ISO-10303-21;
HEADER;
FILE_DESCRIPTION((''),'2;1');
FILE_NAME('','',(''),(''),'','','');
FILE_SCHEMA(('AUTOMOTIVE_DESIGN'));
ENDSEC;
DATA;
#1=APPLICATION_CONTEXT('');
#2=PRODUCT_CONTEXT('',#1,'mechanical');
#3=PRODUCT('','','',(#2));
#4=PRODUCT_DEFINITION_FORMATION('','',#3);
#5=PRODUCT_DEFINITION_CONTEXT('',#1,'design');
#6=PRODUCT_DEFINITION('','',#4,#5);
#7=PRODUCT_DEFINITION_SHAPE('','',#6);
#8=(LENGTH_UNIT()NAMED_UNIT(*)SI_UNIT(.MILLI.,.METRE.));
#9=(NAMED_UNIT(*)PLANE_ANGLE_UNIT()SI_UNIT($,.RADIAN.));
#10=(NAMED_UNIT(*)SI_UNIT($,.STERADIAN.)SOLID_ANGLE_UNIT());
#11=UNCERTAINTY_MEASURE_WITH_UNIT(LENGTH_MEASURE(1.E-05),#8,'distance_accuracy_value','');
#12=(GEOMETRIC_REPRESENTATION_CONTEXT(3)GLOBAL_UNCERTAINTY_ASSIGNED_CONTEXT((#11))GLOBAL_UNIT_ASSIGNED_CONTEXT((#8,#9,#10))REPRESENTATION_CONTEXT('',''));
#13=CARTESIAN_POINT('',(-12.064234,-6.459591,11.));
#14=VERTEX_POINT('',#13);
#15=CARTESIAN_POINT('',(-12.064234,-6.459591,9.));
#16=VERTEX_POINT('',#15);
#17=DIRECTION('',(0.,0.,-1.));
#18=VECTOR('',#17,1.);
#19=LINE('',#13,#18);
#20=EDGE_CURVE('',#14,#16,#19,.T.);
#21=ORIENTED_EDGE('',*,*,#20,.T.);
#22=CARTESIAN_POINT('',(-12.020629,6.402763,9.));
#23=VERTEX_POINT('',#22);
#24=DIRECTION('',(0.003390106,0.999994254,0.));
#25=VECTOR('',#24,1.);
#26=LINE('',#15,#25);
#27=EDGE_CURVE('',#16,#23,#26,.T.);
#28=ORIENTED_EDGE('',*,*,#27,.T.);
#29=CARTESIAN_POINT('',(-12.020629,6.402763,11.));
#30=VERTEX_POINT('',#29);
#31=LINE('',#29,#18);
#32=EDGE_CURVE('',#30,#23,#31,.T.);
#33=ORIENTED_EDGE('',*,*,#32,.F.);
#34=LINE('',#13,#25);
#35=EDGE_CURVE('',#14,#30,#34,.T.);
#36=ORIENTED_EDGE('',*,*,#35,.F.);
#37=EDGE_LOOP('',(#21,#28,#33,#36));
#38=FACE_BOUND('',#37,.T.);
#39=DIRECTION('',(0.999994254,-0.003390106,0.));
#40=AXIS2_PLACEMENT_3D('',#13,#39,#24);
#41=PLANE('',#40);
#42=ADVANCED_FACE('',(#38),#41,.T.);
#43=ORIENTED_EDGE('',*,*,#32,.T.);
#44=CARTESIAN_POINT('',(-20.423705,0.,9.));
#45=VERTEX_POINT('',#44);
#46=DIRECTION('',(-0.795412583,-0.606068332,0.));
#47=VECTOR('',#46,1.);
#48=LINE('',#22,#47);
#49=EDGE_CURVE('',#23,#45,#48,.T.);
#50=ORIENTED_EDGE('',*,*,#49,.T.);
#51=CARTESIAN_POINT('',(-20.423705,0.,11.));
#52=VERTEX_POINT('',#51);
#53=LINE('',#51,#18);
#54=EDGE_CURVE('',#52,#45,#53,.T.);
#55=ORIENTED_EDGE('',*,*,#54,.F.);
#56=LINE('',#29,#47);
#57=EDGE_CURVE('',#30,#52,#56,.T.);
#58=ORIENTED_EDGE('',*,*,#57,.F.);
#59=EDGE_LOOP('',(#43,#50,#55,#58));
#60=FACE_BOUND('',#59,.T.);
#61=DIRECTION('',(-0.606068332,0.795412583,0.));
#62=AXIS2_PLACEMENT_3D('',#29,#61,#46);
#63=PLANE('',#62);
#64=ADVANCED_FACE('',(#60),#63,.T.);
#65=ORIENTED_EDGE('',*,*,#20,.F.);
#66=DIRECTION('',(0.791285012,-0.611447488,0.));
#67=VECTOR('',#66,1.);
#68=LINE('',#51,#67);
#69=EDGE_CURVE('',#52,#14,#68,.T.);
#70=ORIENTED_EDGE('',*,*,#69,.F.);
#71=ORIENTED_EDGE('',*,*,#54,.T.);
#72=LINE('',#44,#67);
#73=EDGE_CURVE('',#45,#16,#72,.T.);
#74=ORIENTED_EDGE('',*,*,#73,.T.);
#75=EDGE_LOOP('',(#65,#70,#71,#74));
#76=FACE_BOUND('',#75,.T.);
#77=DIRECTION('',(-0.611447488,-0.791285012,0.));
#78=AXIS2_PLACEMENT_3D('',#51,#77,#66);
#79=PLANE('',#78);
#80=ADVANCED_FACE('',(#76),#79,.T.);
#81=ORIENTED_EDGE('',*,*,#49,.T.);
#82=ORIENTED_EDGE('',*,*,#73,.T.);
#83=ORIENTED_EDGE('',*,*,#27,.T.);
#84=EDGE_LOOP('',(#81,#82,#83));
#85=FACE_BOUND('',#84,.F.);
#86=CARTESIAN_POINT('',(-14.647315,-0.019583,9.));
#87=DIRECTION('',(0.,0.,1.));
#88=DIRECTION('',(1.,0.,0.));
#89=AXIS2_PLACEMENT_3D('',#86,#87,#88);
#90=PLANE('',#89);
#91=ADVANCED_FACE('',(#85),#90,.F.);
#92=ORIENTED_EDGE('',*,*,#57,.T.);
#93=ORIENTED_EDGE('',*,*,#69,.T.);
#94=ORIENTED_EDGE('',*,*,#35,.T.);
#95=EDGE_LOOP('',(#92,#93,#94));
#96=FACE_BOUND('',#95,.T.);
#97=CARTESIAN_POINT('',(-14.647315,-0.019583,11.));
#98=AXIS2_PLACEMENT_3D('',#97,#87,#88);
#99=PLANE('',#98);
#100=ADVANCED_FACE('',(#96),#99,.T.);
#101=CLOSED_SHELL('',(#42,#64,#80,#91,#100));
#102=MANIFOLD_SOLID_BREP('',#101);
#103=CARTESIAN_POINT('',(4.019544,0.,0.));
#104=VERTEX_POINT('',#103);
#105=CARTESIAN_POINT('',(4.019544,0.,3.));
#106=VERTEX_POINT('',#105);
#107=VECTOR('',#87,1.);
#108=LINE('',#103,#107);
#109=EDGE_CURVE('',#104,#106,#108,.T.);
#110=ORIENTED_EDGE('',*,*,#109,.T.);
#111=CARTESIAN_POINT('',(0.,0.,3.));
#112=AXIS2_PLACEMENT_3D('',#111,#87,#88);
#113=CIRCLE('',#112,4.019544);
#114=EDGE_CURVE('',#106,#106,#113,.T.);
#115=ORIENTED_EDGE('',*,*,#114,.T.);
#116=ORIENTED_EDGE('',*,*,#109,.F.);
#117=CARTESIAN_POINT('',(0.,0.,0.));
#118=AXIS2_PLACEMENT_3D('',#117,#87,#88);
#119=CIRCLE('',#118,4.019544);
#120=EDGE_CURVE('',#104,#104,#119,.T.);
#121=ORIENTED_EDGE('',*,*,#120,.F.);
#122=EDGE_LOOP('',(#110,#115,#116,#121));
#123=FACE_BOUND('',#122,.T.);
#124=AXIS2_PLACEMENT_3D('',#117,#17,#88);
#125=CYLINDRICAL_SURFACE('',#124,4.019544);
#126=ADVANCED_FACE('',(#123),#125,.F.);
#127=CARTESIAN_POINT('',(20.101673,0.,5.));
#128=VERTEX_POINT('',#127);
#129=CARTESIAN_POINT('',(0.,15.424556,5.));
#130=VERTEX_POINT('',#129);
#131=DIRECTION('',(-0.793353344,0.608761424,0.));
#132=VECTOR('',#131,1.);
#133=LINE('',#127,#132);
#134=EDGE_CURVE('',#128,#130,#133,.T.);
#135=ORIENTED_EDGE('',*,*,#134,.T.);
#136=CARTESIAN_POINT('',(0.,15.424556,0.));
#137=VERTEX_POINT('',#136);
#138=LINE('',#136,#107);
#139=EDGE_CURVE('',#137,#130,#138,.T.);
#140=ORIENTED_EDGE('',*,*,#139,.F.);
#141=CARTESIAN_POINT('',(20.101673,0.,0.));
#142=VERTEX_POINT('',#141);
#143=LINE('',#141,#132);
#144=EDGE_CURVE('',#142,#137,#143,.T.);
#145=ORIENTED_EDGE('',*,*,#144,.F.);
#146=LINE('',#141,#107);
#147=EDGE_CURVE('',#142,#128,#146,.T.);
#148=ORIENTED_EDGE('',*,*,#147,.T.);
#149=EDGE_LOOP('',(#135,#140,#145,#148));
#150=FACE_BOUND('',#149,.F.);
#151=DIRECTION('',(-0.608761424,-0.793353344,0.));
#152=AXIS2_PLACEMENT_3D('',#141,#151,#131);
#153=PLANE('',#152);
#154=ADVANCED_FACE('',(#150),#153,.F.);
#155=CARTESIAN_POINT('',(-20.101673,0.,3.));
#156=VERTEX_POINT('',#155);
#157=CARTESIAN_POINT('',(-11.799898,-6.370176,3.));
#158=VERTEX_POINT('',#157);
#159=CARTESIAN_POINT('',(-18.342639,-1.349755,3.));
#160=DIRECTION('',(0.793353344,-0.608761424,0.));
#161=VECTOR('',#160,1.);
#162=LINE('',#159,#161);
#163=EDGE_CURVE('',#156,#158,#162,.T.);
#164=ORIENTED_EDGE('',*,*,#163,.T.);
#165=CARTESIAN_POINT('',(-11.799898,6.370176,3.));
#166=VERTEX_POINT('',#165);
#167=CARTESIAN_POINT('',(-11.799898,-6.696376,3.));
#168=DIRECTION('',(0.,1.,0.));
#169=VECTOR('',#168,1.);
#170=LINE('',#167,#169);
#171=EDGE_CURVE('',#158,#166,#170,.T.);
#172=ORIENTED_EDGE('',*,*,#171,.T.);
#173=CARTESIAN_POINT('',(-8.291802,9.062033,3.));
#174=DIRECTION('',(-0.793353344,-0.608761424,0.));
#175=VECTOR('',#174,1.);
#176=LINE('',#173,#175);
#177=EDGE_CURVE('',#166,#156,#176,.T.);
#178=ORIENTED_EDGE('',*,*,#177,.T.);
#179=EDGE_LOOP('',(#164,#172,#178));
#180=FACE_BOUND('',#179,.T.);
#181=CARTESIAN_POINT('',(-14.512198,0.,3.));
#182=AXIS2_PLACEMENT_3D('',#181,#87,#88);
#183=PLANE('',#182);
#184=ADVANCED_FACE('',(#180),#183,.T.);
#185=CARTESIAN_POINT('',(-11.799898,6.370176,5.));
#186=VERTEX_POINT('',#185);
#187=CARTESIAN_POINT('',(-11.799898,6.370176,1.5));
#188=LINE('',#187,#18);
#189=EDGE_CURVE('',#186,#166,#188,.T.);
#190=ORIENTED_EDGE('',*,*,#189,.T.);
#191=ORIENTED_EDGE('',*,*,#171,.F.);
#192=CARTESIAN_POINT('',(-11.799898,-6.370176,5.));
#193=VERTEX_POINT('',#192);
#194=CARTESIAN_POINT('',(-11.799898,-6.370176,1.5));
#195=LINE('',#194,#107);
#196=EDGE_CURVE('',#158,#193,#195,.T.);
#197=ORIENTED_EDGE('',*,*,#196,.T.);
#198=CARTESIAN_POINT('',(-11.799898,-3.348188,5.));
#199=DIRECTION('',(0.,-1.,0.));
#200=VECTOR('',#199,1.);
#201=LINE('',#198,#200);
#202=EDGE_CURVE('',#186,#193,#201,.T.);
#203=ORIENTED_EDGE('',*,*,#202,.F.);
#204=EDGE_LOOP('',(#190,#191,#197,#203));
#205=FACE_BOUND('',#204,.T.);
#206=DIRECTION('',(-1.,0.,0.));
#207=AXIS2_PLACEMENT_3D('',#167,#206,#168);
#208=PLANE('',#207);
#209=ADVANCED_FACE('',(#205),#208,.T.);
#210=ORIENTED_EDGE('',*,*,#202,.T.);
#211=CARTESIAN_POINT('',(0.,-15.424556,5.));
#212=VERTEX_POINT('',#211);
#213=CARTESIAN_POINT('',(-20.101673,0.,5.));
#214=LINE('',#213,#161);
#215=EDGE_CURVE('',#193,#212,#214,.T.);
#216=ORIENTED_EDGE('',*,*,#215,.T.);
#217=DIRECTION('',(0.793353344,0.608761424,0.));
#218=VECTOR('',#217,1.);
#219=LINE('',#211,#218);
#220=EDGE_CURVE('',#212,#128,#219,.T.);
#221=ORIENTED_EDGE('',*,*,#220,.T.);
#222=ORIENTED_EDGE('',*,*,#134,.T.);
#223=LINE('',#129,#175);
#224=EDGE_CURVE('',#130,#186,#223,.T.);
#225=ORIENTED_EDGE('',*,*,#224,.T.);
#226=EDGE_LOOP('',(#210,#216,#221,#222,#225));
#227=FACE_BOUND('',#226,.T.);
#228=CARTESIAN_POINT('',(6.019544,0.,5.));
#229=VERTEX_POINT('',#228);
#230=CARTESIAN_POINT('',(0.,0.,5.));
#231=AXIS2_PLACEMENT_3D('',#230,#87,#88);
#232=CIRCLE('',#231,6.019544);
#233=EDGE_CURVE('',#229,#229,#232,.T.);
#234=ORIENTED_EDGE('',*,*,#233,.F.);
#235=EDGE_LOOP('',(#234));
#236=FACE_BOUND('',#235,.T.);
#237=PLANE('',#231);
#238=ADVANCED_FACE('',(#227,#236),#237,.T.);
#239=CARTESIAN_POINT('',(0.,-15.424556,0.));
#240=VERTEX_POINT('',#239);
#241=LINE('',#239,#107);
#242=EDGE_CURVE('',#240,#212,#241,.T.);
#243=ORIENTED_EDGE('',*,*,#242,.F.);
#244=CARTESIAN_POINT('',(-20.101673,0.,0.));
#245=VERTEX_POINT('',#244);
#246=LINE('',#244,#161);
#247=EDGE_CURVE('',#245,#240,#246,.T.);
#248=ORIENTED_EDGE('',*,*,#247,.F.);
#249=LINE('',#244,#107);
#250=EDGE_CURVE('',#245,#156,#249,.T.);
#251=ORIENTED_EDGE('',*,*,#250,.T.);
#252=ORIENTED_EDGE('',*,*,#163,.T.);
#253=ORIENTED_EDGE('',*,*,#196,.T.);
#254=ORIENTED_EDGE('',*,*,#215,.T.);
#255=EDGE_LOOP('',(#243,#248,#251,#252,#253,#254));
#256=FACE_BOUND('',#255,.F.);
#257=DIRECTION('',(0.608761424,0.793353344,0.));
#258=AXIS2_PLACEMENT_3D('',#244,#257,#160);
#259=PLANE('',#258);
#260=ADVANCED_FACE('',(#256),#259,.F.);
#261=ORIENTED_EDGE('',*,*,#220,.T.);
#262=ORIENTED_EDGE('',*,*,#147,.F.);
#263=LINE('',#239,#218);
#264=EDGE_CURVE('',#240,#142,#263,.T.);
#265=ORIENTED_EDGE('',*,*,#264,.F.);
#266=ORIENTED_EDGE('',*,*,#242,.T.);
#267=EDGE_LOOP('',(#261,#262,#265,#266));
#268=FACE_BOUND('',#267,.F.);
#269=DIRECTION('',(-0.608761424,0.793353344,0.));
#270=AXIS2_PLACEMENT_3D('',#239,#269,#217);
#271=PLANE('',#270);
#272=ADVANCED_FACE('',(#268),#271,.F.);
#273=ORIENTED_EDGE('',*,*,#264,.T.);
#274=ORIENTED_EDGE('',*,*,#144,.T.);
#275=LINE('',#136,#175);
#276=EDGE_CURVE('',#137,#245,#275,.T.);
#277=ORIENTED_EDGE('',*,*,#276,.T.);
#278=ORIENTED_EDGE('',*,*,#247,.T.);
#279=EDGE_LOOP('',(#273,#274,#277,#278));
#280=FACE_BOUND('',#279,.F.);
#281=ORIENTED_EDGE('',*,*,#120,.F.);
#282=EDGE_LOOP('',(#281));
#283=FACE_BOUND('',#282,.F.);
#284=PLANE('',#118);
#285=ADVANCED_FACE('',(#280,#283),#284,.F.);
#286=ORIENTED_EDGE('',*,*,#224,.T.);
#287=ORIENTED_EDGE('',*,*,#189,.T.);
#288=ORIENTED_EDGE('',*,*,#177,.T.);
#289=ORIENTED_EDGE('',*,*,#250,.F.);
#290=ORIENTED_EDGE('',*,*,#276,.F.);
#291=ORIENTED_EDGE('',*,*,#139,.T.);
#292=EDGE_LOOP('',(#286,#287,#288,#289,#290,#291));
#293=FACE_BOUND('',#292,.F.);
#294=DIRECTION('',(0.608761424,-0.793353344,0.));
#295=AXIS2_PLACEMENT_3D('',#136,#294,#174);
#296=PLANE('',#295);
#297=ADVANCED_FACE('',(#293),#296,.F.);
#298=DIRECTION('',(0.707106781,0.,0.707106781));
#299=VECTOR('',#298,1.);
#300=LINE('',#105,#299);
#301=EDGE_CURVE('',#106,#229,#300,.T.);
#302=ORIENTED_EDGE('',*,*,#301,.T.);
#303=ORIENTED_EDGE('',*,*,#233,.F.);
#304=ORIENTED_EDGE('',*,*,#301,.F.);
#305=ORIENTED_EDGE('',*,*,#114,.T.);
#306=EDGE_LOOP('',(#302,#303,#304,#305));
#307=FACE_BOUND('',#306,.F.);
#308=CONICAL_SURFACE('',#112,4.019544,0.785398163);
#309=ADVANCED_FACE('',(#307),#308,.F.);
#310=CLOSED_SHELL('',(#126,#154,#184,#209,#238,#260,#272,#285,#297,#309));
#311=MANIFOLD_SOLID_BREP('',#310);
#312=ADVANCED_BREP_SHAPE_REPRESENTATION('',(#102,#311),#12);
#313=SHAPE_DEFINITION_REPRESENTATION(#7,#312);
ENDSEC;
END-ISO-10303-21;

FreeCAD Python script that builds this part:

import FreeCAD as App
import Part
import Sketcher
from FreeCAD import Vector
Q = App.Units.Quantity


def edges_at(feature, points):
    """Names of the edges that pass closest to the given points."""
    edges = feature.Shape.Edges
    near = lambda p: min(range(len(edges)), key=lambda i: edges[i].distToShape(Part.Vertex(*p))[0])
    return sorted({f"Edge{near(p) + 1}" for p in points})


def add_polygon(sketch, points):
    """Adds a closed chain of lines whose ends are joined by coincident constraints."""
    first, n = sketch.GeometryCount, len(points)
    for a, b in zip(points, points[1:] + points[:1]):
        sketch.addGeometry(Part.LineSegment(App.Vector(*a, 0), App.Vector(*b, 0)), False)
    for i in range(n):
        sketch.addConstraint(Sketcher.Constraint("Coincident", first + i, 2, first + (i + 1) % n, 1))

doc = App.newDocument("Part")
body = doc.addObject("PartDesign::Body", "Body")

sketch1 = body.newObject("Sketcher::SketchObject", "Sketch")
sketch1.AttachmentSupport = (doc.getObject("XY_Plane"), [""])
sketch1.MapMode = "FlatFace"
add_polygon(sketch1, [(0, -15.4), (20.1, 0), (0, 15.4), (-20.1, 0)])
sketch1.addGeometry(Part.Circle(Vector(0, 0, 0), Vector(0, 0, 1), 4), False)
sketch1.addConstraint(Sketcher.Constraint("Coincident", 4, 3, -1, 1))
sketch1.addConstraint(Sketcher.Constraint("Symmetric", 0, 2, 2, 2, -1, 1))
sketch1.addConstraint(Sketcher.Constraint("Symmetric", 1, 2, 3, 2, -1, 1))
sketch1.addConstraint(Sketcher.Constraint("PointOnObject", 0, 2, -1))
sketch1.addConstraint(Sketcher.Constraint("PointOnObject", 1, 2, -2))
sketch1.addConstraint(Sketcher.Constraint("Angle", 0, Q("37.5 deg")))
sketch1.addConstraint(Sketcher.Constraint("Diameter", 4, Q("8.039088 mm")))
sketch1.addConstraint(Sketcher.Constraint("Distance", 0, Q("25.337604 mm")))
pad1 = body.newObject("PartDesign::Pad", "Pad")
pad1.Profile = sketch1
pad1.Length = 5
doc.recompute()

chamfer = body.newObject("PartDesign::Chamfer", "Chamfer")
chamfer.Base = (pad1, edges_at(pad1, [(-4.02, 0, 5)]))
chamfer.Size = 2

sketch2 = body.newObject("Sketcher::SketchObject", "Sketch001")
sketch2.AttachmentSupport = (doc.getObject("XY_Plane"), [""])
sketch2.MapMode = "FlatFace"
sketch2.AttachmentOffset = App.Placement(Vector(0, 0, 3), App.Rotation())
add_polygon(sketch2, [(-12, 7), (-21, 0), (-12, -7)])
sketch2.addConstraint(Sketcher.Constraint("Vertical", 2))
sketch2.addConstraint(Sketcher.Constraint("PointOnObject", 0, 2, -1))
sketch2.addConstraint(Sketcher.Constraint("Equal", 0, 1))
sketch2.addConstraint(Sketcher.Constraint("Distance", 0, Q("11 mm")))
sketch2.addConstraint(Sketcher.Constraint("Angle", 0, Q("-142.5 deg")))
sketch2.addConstraint(Sketcher.Constraint("DistanceX", 1, 2, -1, 1, Q("11.799898 mm")))
pocket1 = body.newObject("PartDesign::Pocket", "Pocket")
pocket1.Profile = sketch2
pocket1.Length = 25
pocket1.Reversed = True
body2 = doc.addObject("PartDesign::Body", "Body001")

sketch3 = body2.newObject("Sketcher::SketchObject", "Sketch002")
sketch3.AttachmentSupport = (doc.getObject("XY_Plane001"), [""])
sketch3.MapMode = "FlatFace"
sketch3.AttachmentOffset = App.Placement(Vector(0, 0, 11), App.Rotation())
add_polygon(sketch3, [(-12, -6), (-12, 6), (-20, 0)])
sketch3.addConstraint(Sketcher.Constraint("PointOnObject", 1, 2, -1))
sketch3.addConstraint(Sketcher.Constraint("Equal", 1, 2))
sketch3.addConstraint(Sketcher.Constraint("DistanceX", 0, 2, -1, 1, Q("12.020629 mm")))
sketch3.addConstraint(Sketcher.Constraint("DistanceY", 2, 2, -1, 1, Q("6.459591 mm")))
sketch3.addConstraint(Sketcher.Constraint("DistanceX", 1, 2, 2, 2, Q("8.359471 mm")))
sketch3.addConstraint(Sketcher.Constraint("Distance", 0, Q("12.862428 mm")))
pad2 = body2.newObject("PartDesign::Pad", "Pad001")
pad2.Profile = sketch3
pad2.Length = 2
pad2.Reversed = True

doc.recompute()
